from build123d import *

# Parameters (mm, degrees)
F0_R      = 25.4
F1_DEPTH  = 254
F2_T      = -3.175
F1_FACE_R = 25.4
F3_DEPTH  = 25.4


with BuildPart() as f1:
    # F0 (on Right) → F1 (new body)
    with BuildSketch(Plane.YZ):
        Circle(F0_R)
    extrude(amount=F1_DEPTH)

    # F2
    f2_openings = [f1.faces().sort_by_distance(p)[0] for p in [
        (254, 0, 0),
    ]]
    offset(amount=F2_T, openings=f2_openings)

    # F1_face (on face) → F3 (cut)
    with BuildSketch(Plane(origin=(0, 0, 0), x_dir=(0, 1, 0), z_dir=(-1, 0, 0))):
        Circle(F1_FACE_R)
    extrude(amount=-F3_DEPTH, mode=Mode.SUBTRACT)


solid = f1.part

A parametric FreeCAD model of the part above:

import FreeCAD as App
import Part
import Sketcher

V = App.Vector
Q = App.Units.Quantity


def faces_at(feature, points):
    """Names of the faces that lie closest to the given points."""
    faces = feature.Shape.Faces
    near = lambda p: min(range(len(faces)), key=lambda i: faces[i].distToShape(Part.Vertex(*p))[0])
    return sorted({f"Face{near(p) + 1}" for p in points})

doc = App.newDocument("Part")
body = doc.addObject("PartDesign::Body", "Body")

sketch1 = doc.addObject("Sketcher::SketchObject", "Sketch")
body.addObject(sketch1)
sketch1.AttachmentSupport = (doc.YZ_Plane, [""])
sketch1.MapMode = "FlatFace"
sketch1.addGeometry(Part.Circle(V(0, 0, 0), V(0, 0, 1), 25.4), False)
sketch1.addConstraint([
    Sketcher.Constraint("Coincident", 0, 3, -1, 1),
    Sketcher.Constraint("Diameter", 0, Q("2 in")),
])
pad1 = doc.addObject("PartDesign::Pad", "Pad")
body.addObject(pad1)
pad1.Profile = sketch1
pad1.Length = Q("10 in")
doc.recompute()

thickness = doc.addObject("PartDesign::Thickness", "Thickness")
body.addObject(thickness)
thickness.Base = (pad1, faces_at(pad1, [(254, 0, 0)]))
thickness.Value = Q("0.125 in")
thickness.Reversed = True
thickness.Join = "Arc"

sketch2 = doc.addObject("Sketcher::SketchObject", "Sketch001")
body.addObject(sketch2)
sketch2.AttachmentSupport = (doc.YZ_Plane, [""])
sketch2.MapMode = "FlatFace"
sketch2.addGeometry(Part.Circle(V(0, 0, 0), V(0, 0, 1), 25.4), False)
sketch2.addConstraint([
    Sketcher.Constraint("Coincident", 0, 3, -1, 1),
    Sketcher.Constraint("Diameter", 0, Q("2 in")),
])
pocket1 = doc.addObject("PartDesign::Pocket", "Pocket")
body.addObject(pocket1)
pocket1.Profile = sketch2
pocket1.Length = Q("1 in")
pocket1.Reversed = True

doc.recompute()
